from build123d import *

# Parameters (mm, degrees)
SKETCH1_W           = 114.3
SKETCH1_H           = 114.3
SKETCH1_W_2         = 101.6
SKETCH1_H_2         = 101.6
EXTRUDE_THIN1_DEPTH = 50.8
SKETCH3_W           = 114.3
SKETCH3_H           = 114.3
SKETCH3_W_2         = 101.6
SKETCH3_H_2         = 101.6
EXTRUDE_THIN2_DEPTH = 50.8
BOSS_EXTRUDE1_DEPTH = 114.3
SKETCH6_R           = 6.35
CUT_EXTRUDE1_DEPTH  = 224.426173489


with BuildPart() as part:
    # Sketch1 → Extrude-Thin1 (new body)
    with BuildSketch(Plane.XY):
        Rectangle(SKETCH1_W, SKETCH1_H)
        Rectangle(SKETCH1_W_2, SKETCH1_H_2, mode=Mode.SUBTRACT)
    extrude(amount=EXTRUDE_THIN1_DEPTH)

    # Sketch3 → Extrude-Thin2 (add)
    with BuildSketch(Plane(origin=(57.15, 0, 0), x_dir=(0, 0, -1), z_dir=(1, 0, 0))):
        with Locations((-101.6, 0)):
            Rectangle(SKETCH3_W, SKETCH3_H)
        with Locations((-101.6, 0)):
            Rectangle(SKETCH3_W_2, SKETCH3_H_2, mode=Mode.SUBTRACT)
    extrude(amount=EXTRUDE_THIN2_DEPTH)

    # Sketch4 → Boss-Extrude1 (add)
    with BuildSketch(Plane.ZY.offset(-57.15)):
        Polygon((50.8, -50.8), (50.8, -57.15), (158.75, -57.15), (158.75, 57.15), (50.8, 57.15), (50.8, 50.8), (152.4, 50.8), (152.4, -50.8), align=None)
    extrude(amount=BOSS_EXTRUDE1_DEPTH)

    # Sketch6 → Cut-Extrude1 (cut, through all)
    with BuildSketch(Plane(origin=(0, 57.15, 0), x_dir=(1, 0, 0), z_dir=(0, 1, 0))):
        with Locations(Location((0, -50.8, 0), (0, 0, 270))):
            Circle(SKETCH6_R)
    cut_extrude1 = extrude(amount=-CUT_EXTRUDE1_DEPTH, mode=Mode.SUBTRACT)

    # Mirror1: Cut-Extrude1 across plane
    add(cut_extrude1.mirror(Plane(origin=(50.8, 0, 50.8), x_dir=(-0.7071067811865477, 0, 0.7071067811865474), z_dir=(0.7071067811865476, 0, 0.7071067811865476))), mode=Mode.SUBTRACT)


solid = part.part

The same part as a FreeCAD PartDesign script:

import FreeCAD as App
import Part
import Sketcher

V = App.Vector
Q = App.Units.Quantity

doc = App.newDocument("Part")
body = doc.addObject("PartDesign::Body", "Body")

sketch1 = body.newObject("Sketcher::SketchObject", "Sketch")
sketch1.AttachmentSupport = (doc.getObject("XY_Plane"), [""])
sketch1.MapMode = "FlatFace"
sketch1.addGeometry(Part.LineSegment(V(-57, 57, 0), V(-57, -57, 0)), False)
sketch1.addGeometry(Part.LineSegment(V(-57, -57, 0), V(57, -57, 0)), False)
sketch1.addGeometry(Part.LineSegment(V(57, -57, 0), V(57, 57, 0)), False)
sketch1.addGeometry(Part.LineSegment(V(57, 57, 0), V(-57, 57, 0)), False)
sketch1.addGeometry(Part.LineSegment(V(51, -51, 0), V(-51, -51, 0)), False)
sketch1.addGeometry(Part.LineSegment(V(-51, -51, 0), V(-51, 51, 0)), False)
sketch1.addGeometry(Part.LineSegment(V(-51, 51, 0), V(51, 51, 0)), False)
sketch1.addGeometry(Part.LineSegment(V(51, 51, 0), V(51, -51, 0)), False)
sketch1.addConstraint(Sketcher.Constraint("Coincident", 0, 2, 1, 1))
sketch1.addConstraint(Sketcher.Constraint("Coincident", 1, 2, 2, 1))
sketch1.addConstraint(Sketcher.Constraint("Coincident", 2, 2, 3, 1))
sketch1.addConstraint(Sketcher.Constraint("Coincident", 3, 2, 0, 1))
sketch1.addConstraint(Sketcher.Constraint("Coincident", 4, 2, 5, 1))
sketch1.addConstraint(Sketcher.Constraint("Coincident", 5, 2, 6, 1))
sketch1.addConstraint(Sketcher.Constraint("Coincident", 6, 2, 7, 1))
sketch1.addConstraint(Sketcher.Constraint("Coincident", 7, 2, 4, 1))
sketch1.addConstraint(Sketcher.Constraint("Vertical", 0))
sketch1.addConstraint(Sketcher.Constraint("Horizontal", 1))
sketch1.addConstraint(Sketcher.Constraint("Vertical", 2))
sketch1.addConstraint(Sketcher.Constraint("Horizontal", 3))
sketch1.addConstraint(Sketcher.Constraint("Horizontal", 4))
sketch1.addConstraint(Sketcher.Constraint("Vertical", 5))
sketch1.addConstraint(Sketcher.Constraint("Horizontal", 6))
sketch1.addConstraint(Sketcher.Constraint("Vertical", 7))
sketch1.addConstraint(Sketcher.Constraint("Symmetric", 0, 2, 2, 2, -1, 1))
sketch1.addConstraint(Sketcher.Constraint("Symmetric", 4, 2, 6, 2, -1, 1))
sketch1.addConstraint(Sketcher.Constraint("Equal", 3, 0))
sketch1.addConstraint(Sketcher.Constraint("Equal", 6, 5))
sketch1.addConstraint(Sketcher.Constraint("DistanceX", 4, 2, 4, 1, Q("4 in")))
sketch1.addConstraint(Sketcher.Constraint("DistanceX", 1, 1, 1, 2, Q("4.5 in")))
pad1 = body.newObject("PartDesign::Pad", "Pad")
pad1.Profile = sketch1
pad1.Length = Q("2 in")

sketch2 = body.newObject("Sketcher::SketchObject", "Sketch001")
sketch2.AttachmentSupport = (doc.getObject("YZ_Plane"), [""])
sketch2.MapMode = "FlatFace"
sketch2.AttachmentOffset = App.Placement(V(0, 0, 2.25 * 25.4), App.Rotation())
sketch2.addGeometry(Part.LineSegment(V(57, 159, 0), V(-57, 159, 0)), False)
sketch2.addGeometry(Part.LineSegment(V(-57, 159, 0), V(-57, 44, 0)), False)
sketch2.addGeometry(Part.LineSegment(V(-57, 44, 0), V(57, 44, 0)), False)
sketch2.addGeometry(Part.LineSegment(V(57, 44, 0), V(57, 159, 0)), False)
sketch2.addGeometry(Part.LineSegment(V(-51, 51, 0), V(-51, 152, 0)), False)
sketch2.addGeometry(Part.LineSegment(V(-51, 152, 0), V(51, 152, 0)), False)
sketch2.addGeometry(Part.LineSegment(V(51, 152, 0), V(51, 51, 0)), False)
sketch2.addGeometry(Part.LineSegment(V(51, 51, 0), V(-51, 51, 0)), False)
sketch2.addConstraint(Sketcher.Constraint("Coincident", 0, 2, 1, 1))
sketch2.addConstraint(Sketcher.Constraint("Coincident", 1, 2, 2, 1))
sketch2.addConstraint(Sketcher.Constraint("Coincident", 2, 2, 3, 1))
sketch2.addConstraint(Sketcher.Constraint("Coincident", 3, 2, 0, 1))
sketch2.addConstraint(Sketcher.Constraint("Coincident", 4, 2, 5, 1))
sketch2.addConstraint(Sketcher.Constraint("Coincident", 5, 2, 6, 1))
sketch2.addConstraint(Sketcher.Constraint("Coincident", 6, 2, 7, 1))
sketch2.addConstraint(Sketcher.Constraint("Coincident", 7, 2, 4, 1))
sketch2.addConstraint(Sketcher.Constraint("Horizontal", 0))
sketch2.addConstraint(Sketcher.Constraint("Vertical", 1))
sketch2.addConstraint(Sketcher.Constraint("Horizontal", 2))
sketch2.addConstraint(Sketcher.Constraint("Vertical", 3))
sketch2.addConstraint(Sketcher.Constraint("Vertical", 4))
sketch2.addConstraint(Sketcher.Constraint("Horizontal", 5))
sketch2.addConstraint(Sketcher.Constraint("Vertical", 6))
sketch2.addConstraint(Sketcher.Constraint("Horizontal", 7))
sketch2.addConstraint(Sketcher.Constraint("Equal", 2, 1))
sketch2.addConstraint(Sketcher.Constraint("Equal", 7, 4))
sketch2.addConstraint(Sketcher.Constraint("DistanceX", 5, 1, 5, 2, Q("4 in")))
sketch2.addConstraint(Sketcher.Constraint("DistanceX", 0, 2, 0, 1, Q("4.5 in")))
sketch2.addConstraint(Sketcher.Constraint("DistanceX", 4, 2, -1, 1, Q("2 in")))
sketch2.addConstraint(Sketcher.Constraint("DistanceY", -1, 1, 4, 2, Q("6 in")))
sketch2.addConstraint(Sketcher.Constraint("DistanceX", 0, 2, -1, 1, Q("2.25 in")))
sketch2.addConstraint(Sketcher.Constraint("DistanceY", -1, 1, 0, 2, Q("6.25 in")))
pad2 = body.newObject("PartDesign::Pad", "Pad001")
pad2.Profile = sketch2
pad2.Length = Q("2 in")

sketch3 = body.newObject("Sketcher::SketchObject", "Sketch002")
sketch3.AttachmentSupport = (doc.getObject("YZ_Plane"), [""])
sketch3.MapMode = "FlatFace"
sketch3.AttachmentOffset = App.Placement(V(0, 0, 2.25 * 25.4), App.Rotation())
sketch3.addGeometry(Part.LineSegment(V(-51, 51, 0), V(-57, 51, 0)), False)
sketch3.addGeometry(Part.LineSegment(V(-57, 51, 0), V(-57, 159, 0)), False)
sketch3.addGeometry(Part.LineSegment(V(-57, 159, 0), V(57, 159, 0)), False)
sketch3.addGeometry(Part.LineSegment(V(57, 159, 0), V(57, 51, 0)), False)
sketch3.addGeometry(Part.LineSegment(V(57, 51, 0), V(51, 51, 0)), False)
sketch3.addGeometry(Part.LineSegment(V(51, 51, 0), V(51, 152, 0)), False)
sketch3.addGeometry(Part.LineSegment(V(51, 152, 0), V(-51, 152, 0)), False)
sketch3.addGeometry(Part.LineSegment(V(-51, 152, 0), V(-51, 51, 0)), False)
sketch3.addConstraint(Sketcher.Constraint("Coincident", 0, 2, 1, 1))
sketch3.addConstraint(Sketcher.Constraint("Coincident", 1, 2, 2, 1))
sketch3.addConstraint(Sketcher.Constraint("Coincident", 2, 2, 3, 1))
sketch3.addConstraint(Sketcher.Constraint("Coincident", 3, 2, 4, 1))
sketch3.addConstraint(Sketcher.Constraint("Coincident", 4, 2, 5, 1))
sketch3.addConstraint(Sketcher.Constraint("Coincident", 5, 2, 6, 1))
sketch3.addConstraint(Sketcher.Constraint("Coincident", 6, 2, 7, 1))
sketch3.addConstraint(Sketcher.Constraint("Coincident", 7, 2, 0, 1))
sketch3.addConstraint(Sketcher.Constraint("Horizontal", 0))
sketch3.addConstraint(Sketcher.Constraint("Vertical", 1))
sketch3.addConstraint(Sketcher.Constraint("Horizontal", 2))
sketch3.addConstraint(Sketcher.Constraint("Vertical", 3))
sketch3.addConstraint(Sketcher.Constraint("Horizontal", 4))
sketch3.addConstraint(Sketcher.Constraint("Vertical", 5))
sketch3.addConstraint(Sketcher.Constraint("Horizontal", 6))
sketch3.addConstraint(Sketcher.Constraint("Vertical", 7))
sketch3.addConstraint(Sketcher.Constraint("Symmetric", 0, 2, 3, 2, -2))
sketch3.addConstraint(Sketcher.Constraint("Equal", 0, 4))
sketch3.addConstraint(Sketcher.Constraint("Equal", 6, 5))
sketch3.addConstraint(Sketcher.Constraint("DistanceX", 6, 2, 6, 1, Q("4 in")))
sketch3.addConstraint(Sketcher.Constraint("DistanceX", 2, 1, 2, 2, Q("4.5 in")))
sketch3.addConstraint(Sketcher.Constraint("DistanceY", -1, 1, 0, 2, Q("2 in")))
sketch3.addConstraint(Sketcher.Constraint("DistanceY", 1, 1, 1, 2, Q("4.25 in")))
pad3 = body.newObject("PartDesign::Pad", "Pad002")
pad3.Profile = sketch3
pad3.Length = Q("4.5 in")
pad3.Reversed = True

sketch4 = body.newObject("Sketcher::SketchObject", "Sketch003")
sketch4.AttachmentSupport = (doc.getObject("XZ_Plane"), [""])
sketch4.MapMode = "FlatFace"
sketch4.AttachmentOffset = App.Placement(V(0, 0, -2.25 * 25.4), App.Rotation())
sketch4.addGeometry(Part.Circle(V(0, 51, 0), V(0, 0, 1), 6), False)
sketch4.addConstraint(Sketcher.Constraint("PointOnObject", 0, 3, -2))
sketch4.addConstraint(Sketcher.Constraint("Diameter", 0, Q("0.5 in")))
sketch4.addConstraint(Sketcher.Constraint("DistanceY", -1, 1, 0, 3, Q("2 in")))
pocket1 = body.newObject("PartDesign::Pocket", "Pocket")
pocket1.Profile = sketch4
pocket1.Type = "ThroughAll"
pocket1.Reversed = True
doc.recompute()

datumplane = body.newObject("PartDesign::Plane", "DatumPlane")
datumplane.Placement = App.Placement(V(50.8, 0, 50.8), App.Rotation(V(-0.707106781, 0, 0.707106781), V(0, -1, 0), V(0.707106781, 0, 0.707106781), "ZXY"))
mirrored = body.newObject("PartDesign::Mirrored", "Mirrored")
mirrored.Originals = [pocket1]
mirrored.MirrorPlane = (datumplane, [""])
body.Tip = mirrored

doc.recompute()
